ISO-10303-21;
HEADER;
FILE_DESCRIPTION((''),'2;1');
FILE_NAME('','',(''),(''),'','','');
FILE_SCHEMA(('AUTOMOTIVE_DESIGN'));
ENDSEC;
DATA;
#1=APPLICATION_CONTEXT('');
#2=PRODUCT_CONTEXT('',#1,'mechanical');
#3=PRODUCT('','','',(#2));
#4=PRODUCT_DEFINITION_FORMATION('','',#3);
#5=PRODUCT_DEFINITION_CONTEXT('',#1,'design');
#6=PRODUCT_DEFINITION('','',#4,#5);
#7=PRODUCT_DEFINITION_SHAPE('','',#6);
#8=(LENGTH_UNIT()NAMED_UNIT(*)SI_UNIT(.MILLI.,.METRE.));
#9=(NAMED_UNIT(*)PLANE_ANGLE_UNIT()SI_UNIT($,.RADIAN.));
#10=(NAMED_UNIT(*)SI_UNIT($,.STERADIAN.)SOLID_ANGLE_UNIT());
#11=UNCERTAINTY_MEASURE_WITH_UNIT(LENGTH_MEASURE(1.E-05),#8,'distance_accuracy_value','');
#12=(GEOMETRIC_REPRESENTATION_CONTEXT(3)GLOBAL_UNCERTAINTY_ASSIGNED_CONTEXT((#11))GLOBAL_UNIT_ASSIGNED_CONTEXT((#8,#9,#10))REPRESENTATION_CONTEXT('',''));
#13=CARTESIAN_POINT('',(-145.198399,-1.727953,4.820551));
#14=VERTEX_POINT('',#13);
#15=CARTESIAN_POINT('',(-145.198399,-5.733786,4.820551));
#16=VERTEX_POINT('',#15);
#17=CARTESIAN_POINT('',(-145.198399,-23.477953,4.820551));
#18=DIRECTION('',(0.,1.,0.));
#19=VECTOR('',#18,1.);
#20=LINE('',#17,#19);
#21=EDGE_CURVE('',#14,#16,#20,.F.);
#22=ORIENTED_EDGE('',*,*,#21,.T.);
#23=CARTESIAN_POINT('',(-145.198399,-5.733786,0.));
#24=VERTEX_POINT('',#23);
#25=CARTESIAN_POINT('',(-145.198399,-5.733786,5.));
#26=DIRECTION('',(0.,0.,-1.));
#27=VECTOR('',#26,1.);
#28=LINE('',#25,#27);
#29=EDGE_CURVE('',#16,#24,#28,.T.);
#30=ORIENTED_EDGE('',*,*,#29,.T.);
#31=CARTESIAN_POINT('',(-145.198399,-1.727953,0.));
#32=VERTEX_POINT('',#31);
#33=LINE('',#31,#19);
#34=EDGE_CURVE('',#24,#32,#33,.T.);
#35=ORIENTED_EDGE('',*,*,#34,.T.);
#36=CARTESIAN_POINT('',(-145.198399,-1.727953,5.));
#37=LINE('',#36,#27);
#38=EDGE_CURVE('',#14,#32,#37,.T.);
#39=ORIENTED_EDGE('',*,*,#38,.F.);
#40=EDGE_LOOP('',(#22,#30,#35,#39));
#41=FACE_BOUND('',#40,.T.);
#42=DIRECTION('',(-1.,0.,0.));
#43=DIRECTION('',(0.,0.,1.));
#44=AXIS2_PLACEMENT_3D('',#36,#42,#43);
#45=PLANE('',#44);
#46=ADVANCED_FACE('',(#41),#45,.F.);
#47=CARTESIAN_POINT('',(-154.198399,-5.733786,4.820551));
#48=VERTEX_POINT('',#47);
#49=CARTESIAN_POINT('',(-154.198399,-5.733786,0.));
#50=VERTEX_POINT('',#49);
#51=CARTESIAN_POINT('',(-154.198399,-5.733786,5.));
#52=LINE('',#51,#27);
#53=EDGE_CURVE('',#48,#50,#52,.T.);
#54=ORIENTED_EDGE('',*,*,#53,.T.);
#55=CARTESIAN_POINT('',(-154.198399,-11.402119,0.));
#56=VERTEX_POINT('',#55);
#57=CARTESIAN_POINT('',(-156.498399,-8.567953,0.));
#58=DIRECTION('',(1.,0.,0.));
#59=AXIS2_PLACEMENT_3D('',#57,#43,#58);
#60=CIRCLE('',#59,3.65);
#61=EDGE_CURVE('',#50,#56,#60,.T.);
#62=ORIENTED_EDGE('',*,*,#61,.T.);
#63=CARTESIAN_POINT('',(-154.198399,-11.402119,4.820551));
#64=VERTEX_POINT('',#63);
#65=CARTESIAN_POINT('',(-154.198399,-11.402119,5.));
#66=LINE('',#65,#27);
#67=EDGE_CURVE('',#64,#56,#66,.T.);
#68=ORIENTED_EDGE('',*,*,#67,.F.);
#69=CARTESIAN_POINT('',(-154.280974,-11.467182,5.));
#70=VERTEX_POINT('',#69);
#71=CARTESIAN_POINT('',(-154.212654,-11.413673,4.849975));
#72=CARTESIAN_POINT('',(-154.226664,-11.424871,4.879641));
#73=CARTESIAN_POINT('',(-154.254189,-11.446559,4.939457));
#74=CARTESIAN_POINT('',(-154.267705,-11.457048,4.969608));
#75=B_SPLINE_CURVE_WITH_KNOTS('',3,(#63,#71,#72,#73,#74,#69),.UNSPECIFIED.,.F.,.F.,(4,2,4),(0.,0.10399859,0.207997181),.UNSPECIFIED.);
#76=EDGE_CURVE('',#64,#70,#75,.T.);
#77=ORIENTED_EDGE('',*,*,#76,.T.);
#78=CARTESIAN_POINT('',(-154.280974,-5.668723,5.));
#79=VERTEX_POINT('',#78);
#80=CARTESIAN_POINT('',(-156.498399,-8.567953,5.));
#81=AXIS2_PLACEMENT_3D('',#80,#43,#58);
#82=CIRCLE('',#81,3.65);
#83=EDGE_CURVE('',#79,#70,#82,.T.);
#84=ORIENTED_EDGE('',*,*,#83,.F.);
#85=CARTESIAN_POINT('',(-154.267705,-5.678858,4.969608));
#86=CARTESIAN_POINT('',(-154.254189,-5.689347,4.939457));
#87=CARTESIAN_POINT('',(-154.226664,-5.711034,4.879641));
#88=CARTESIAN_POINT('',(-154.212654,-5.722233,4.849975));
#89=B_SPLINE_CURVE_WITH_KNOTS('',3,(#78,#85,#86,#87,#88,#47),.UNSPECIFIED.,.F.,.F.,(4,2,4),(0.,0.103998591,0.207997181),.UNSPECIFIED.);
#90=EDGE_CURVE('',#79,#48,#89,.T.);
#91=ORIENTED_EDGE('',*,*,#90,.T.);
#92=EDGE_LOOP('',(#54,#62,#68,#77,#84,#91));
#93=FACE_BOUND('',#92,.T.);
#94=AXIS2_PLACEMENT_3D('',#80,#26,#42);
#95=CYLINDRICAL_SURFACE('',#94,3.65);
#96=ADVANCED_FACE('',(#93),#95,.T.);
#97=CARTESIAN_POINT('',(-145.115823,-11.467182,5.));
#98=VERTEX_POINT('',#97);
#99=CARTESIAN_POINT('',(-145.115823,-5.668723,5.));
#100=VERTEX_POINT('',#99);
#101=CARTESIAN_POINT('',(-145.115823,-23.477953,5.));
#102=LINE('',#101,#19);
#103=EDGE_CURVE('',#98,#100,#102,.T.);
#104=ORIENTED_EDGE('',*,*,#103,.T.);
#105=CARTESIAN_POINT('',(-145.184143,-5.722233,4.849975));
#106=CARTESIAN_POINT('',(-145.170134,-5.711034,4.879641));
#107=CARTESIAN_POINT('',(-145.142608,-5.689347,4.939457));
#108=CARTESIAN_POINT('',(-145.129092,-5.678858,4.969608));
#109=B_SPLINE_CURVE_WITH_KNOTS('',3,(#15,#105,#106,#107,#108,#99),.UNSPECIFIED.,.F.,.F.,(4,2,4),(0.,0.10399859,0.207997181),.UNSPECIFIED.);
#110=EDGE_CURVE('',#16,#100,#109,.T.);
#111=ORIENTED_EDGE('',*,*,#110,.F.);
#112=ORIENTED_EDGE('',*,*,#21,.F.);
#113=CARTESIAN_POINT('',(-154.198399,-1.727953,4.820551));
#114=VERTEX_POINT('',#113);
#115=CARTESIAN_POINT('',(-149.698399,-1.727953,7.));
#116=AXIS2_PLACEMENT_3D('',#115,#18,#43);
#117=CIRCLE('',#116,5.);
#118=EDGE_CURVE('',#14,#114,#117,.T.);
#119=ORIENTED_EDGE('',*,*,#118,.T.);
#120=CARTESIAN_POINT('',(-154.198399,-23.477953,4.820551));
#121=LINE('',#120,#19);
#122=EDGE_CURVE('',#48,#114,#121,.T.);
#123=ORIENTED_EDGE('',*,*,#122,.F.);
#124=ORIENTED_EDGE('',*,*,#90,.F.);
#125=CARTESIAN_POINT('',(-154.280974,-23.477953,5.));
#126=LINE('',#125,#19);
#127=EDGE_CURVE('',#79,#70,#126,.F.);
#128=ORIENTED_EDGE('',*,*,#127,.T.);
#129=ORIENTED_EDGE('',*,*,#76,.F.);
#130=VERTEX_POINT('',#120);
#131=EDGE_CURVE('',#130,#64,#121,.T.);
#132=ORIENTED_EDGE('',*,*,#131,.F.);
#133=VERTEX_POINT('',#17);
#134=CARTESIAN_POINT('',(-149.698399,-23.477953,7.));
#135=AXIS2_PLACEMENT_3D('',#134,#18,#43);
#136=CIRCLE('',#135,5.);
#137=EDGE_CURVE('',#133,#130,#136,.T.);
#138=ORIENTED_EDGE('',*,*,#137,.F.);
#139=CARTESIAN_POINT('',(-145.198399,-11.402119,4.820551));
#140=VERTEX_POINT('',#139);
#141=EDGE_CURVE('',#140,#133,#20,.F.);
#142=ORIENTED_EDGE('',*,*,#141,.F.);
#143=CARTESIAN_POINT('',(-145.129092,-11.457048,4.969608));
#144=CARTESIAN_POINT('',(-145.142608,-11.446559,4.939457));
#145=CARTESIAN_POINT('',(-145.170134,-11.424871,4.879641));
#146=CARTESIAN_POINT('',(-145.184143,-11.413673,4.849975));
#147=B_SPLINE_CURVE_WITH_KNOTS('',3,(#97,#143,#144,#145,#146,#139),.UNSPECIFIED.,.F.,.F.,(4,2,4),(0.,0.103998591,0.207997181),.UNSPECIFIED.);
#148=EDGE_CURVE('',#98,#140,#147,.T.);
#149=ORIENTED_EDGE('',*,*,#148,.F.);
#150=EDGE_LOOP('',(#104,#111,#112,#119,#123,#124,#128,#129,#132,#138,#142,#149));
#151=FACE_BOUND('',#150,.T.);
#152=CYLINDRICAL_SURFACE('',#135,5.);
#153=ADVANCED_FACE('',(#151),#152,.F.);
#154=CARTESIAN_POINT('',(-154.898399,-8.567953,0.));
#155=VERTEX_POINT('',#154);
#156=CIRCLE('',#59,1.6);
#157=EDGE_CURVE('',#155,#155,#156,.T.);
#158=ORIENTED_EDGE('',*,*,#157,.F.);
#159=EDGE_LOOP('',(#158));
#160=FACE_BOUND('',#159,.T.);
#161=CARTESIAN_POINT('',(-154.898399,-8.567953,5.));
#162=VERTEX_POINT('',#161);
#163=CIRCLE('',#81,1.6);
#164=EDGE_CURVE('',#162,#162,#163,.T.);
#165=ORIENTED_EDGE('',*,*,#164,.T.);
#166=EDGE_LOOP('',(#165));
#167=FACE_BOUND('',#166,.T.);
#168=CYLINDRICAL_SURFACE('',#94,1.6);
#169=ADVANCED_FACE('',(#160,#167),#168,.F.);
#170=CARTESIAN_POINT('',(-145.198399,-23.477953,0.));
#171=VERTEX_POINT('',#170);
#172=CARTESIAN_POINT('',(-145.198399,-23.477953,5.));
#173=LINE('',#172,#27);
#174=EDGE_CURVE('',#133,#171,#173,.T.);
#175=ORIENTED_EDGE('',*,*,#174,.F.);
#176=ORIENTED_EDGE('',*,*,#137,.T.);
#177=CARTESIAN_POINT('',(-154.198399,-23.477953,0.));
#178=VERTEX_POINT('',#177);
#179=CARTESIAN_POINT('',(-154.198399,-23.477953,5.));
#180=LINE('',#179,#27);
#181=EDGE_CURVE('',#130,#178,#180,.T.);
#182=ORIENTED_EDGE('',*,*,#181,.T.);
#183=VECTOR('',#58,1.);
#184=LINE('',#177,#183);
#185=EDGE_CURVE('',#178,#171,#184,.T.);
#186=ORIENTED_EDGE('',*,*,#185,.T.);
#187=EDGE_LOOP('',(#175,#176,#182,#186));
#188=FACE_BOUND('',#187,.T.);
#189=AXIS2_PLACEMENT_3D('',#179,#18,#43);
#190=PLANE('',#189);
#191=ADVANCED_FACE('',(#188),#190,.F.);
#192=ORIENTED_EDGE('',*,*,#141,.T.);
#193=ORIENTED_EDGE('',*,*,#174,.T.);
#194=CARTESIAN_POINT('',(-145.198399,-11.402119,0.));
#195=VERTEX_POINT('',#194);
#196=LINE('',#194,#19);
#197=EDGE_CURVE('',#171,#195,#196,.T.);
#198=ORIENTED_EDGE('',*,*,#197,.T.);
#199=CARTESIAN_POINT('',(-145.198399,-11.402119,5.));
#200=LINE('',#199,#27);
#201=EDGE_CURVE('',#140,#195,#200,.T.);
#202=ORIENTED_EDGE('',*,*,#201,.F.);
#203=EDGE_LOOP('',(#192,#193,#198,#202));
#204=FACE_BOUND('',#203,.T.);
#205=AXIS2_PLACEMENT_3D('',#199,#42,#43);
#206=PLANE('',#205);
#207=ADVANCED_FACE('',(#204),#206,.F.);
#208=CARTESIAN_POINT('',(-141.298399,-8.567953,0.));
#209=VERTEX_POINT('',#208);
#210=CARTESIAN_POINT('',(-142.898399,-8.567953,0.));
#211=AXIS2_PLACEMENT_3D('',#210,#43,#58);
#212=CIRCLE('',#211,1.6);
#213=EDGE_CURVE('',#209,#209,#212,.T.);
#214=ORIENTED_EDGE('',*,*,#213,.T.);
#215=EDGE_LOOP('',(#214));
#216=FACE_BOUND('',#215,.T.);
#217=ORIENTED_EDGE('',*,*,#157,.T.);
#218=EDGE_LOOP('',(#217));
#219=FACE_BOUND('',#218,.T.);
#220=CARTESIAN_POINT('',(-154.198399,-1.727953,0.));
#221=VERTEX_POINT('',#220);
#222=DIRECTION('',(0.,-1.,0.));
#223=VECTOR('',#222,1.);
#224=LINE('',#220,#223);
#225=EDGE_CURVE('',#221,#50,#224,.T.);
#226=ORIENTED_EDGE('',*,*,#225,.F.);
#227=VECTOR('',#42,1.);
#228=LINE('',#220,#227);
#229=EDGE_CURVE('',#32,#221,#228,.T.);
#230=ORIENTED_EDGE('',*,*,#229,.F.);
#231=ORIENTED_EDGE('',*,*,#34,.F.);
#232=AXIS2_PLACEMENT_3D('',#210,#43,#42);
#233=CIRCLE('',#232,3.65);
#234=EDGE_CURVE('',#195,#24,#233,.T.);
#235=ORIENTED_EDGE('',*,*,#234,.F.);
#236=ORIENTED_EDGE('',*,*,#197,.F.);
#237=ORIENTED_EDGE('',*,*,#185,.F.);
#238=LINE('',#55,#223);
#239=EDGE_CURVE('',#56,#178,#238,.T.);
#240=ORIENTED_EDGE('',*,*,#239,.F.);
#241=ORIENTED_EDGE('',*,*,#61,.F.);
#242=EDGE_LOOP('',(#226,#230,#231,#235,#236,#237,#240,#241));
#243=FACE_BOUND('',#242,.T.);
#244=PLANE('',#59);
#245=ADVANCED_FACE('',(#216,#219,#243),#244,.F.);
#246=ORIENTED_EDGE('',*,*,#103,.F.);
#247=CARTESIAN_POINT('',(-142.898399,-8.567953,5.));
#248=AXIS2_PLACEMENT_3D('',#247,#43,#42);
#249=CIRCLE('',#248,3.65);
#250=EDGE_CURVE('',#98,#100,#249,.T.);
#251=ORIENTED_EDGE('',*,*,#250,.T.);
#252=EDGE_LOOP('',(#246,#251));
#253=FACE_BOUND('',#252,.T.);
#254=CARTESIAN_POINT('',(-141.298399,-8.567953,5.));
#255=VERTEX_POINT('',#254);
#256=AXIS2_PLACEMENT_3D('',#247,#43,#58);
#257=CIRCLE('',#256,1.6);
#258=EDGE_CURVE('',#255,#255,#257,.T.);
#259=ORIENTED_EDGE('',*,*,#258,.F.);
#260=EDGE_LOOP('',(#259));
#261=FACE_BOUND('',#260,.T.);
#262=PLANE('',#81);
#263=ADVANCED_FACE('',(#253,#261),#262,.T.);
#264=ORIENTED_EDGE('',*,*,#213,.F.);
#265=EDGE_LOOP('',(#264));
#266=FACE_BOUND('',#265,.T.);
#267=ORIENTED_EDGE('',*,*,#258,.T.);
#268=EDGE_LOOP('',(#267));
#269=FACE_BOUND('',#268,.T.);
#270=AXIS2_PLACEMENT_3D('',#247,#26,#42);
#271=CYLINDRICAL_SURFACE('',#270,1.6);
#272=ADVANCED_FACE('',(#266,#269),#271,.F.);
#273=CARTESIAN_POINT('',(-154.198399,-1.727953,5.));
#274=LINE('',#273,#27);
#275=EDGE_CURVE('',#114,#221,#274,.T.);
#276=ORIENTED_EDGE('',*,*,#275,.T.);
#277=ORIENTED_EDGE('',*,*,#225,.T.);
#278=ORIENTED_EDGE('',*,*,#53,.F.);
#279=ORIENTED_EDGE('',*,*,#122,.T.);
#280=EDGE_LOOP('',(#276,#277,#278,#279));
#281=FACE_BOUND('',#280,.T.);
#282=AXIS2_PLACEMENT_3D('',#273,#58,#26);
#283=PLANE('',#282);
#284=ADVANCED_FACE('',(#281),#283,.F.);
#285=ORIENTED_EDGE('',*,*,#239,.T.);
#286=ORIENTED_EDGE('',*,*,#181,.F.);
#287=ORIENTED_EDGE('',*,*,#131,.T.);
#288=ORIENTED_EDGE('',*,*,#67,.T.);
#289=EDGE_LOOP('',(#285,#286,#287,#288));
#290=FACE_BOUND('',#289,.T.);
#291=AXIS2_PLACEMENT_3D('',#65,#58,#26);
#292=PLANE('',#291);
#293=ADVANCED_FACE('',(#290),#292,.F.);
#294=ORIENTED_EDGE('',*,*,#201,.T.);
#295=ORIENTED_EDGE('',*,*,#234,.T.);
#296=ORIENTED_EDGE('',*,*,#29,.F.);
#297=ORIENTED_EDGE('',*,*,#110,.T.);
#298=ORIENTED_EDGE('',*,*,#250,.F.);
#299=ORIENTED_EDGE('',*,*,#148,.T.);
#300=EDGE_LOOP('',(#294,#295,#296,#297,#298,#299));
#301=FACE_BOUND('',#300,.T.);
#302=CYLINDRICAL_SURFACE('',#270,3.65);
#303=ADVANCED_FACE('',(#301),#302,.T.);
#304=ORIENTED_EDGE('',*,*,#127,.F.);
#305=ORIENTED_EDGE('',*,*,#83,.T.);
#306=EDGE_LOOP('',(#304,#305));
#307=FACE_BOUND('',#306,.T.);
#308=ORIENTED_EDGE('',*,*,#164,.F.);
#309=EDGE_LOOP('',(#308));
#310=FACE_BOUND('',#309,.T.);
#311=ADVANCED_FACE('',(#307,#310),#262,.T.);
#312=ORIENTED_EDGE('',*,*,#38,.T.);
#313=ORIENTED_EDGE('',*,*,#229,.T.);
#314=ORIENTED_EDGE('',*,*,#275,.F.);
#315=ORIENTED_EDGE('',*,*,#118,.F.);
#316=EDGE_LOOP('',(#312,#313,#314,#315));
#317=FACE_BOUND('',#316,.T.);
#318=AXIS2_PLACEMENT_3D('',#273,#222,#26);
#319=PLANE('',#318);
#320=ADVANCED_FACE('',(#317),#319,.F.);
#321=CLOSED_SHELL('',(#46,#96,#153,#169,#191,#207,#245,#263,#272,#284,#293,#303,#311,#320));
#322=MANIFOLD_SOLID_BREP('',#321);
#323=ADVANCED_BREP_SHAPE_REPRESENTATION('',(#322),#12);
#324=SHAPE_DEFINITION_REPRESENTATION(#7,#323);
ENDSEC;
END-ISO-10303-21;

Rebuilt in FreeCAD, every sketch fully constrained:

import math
import FreeCAD as App
import Part
import Sketcher
from FreeCAD import Vector
Q = App.Units.Quantity

doc = App.newDocument("Part")
body = doc.addObject("PartDesign::Body", "Body")

sketch1 = doc.addObject("Sketcher::SketchObject", "Sketch")
body.addObject(sketch1)
sketch1.AttachmentSupport = (doc.XY_Plane, [""])
sketch1.MapMode = "FlatFace"
sketch1.addGeometry([
    Part.LineSegment(Vector(-154.2, -11.4, 0), Vector(-154.2, -23.5, 0)),
    Part.LineSegment(Vector(-154.2, -23.5, 0), Vector(-145.2, -23.5, 0)),
    Part.LineSegment(Vector(-145.2, -23.5, 0), Vector(-145.2, -11.4, 0)),
    Part.ArcOfCircle(Part.Circle(Vector(-142.9, -8.6, 0), Vector(0, 0, 1), 3.6), math.radians(-129), math.radians(129)),
    Part.LineSegment(Vector(-145.2, -5.7, 0), Vector(-145.2, -1.7, 0)),
    Part.LineSegment(Vector(-145.2, -1.7, 0), Vector(-154.2, -1.7, 0)),
    Part.LineSegment(Vector(-154.2, -1.7, 0), Vector(-154.2, -5.7, 0)),
    Part.ArcOfCircle(Part.Circle(Vector(-156.5, -8.6, 0), Vector(0, 0, 1), 3.6), math.radians(51), math.radians(309)),
    Part.Circle(Vector(-156.5, -8.6, 0), Vector(0, 0, 1), 1.6),
    Part.Circle(Vector(-142.9, -8.6, 0), Vector(0, 0, 1), 1.6),
], False)
sketch1.addConstraint([
    Sketcher.Constraint("Coincident", 0, 2, 1, 1),
    Sketcher.Constraint("Coincident", 1, 2, 2, 1),
    Sketcher.Constraint("Coincident", 2, 2, 3, 1),
    Sketcher.Constraint("Coincident", 3, 2, 4, 1),
    Sketcher.Constraint("Coincident", 4, 2, 5, 1),
    Sketcher.Constraint("Coincident", 5, 2, 6, 1),
    Sketcher.Constraint("Coincident", 6, 2, 7, 1),
    Sketcher.Constraint("Coincident", 7, 2, 0, 1),
    Sketcher.Constraint("Vertical", 0),
    Sketcher.Constraint("Horizontal", 1),
    Sketcher.Constraint("Vertical", 2),
    Sketcher.Constraint("Vertical", 4),
    Sketcher.Constraint("Horizontal", 5),
    Sketcher.Constraint("Vertical", 6),
    Sketcher.Constraint("Coincident", 8, 3, 7, 3),
    Sketcher.Constraint("Coincident", 9, 3, 3, 3),
    Sketcher.Constraint("Equal", 3, 7),
    Sketcher.Constraint("Equal", 8, 9),
    Sketcher.Constraint("Horizontal", 3, 3, 7, 3),
    Sketcher.Constraint("Horizontal", 3, 2, 6, 2),
    Sketcher.Constraint("Horizontal", 2, 2, 7, 2),
    Sketcher.Constraint("Vertical", 2, 2, 3, 2),
    Sketcher.Constraint("Diameter", 8, Q("3.2 mm")),
    Sketcher.Constraint("DistanceX", 1, 1, 1, 2, Q("9 mm")),
    Sketcher.Constraint("Radius", 3, Q("3.65 mm")),
    Sketcher.Constraint("DistanceX", 7, 3, 3, 3, Q("13.6 mm")),
    Sketcher.Constraint("DistanceY", 0, 2, 8, 3, Q("14.91 mm")),
    Sketcher.Constraint("DistanceY", 3, 3, 4, 2, Q("6.84 mm")),
    Sketcher.Constraint("DistanceX", 3, 3, -1, 1, Q("142.898399 mm")),
    Sketcher.Constraint("DistanceY", 2, 2, -1, 1, Q("11.402119 mm")),
])
pad1 = doc.addObject("PartDesign::Pad", "Pad")
body.addObject(pad1)
pad1.Profile = sketch1
pad1.Length = 5

sketch2 = doc.addObject("Sketcher::SketchObject", "Sketch001")
body.addObject(sketch2)
sketch2.AttachmentSupport = (doc.XZ_Plane, [""])
sketch2.MapMode = "FlatFace"
sketch2.AttachmentOffset = App.Placement(Vector(0, 0, 1.727953), App.Rotation())
sketch2.addGeometry(Part.Circle(Vector(-150, 7, 0), Vector(0, 0, 1), 5), False)
sketch2.addConstraint([
    Sketcher.Constraint("Diameter", 0, Q("10 mm")),
    Sketcher.Constraint("DistanceY", -1, 1, 0, 3, Q("7 mm")),
    Sketcher.Constraint("DistanceX", 0, 3, -1, 1, Q("149.698399 mm")),
])
pocket1 = doc.addObject("PartDesign::Pocket", "Pocket")
body.addObject(pocket1)
pocket1.Profile = sketch2
pocket1.Type = "ThroughAll"
pocket1.Reversed = True

doc.recompute()
